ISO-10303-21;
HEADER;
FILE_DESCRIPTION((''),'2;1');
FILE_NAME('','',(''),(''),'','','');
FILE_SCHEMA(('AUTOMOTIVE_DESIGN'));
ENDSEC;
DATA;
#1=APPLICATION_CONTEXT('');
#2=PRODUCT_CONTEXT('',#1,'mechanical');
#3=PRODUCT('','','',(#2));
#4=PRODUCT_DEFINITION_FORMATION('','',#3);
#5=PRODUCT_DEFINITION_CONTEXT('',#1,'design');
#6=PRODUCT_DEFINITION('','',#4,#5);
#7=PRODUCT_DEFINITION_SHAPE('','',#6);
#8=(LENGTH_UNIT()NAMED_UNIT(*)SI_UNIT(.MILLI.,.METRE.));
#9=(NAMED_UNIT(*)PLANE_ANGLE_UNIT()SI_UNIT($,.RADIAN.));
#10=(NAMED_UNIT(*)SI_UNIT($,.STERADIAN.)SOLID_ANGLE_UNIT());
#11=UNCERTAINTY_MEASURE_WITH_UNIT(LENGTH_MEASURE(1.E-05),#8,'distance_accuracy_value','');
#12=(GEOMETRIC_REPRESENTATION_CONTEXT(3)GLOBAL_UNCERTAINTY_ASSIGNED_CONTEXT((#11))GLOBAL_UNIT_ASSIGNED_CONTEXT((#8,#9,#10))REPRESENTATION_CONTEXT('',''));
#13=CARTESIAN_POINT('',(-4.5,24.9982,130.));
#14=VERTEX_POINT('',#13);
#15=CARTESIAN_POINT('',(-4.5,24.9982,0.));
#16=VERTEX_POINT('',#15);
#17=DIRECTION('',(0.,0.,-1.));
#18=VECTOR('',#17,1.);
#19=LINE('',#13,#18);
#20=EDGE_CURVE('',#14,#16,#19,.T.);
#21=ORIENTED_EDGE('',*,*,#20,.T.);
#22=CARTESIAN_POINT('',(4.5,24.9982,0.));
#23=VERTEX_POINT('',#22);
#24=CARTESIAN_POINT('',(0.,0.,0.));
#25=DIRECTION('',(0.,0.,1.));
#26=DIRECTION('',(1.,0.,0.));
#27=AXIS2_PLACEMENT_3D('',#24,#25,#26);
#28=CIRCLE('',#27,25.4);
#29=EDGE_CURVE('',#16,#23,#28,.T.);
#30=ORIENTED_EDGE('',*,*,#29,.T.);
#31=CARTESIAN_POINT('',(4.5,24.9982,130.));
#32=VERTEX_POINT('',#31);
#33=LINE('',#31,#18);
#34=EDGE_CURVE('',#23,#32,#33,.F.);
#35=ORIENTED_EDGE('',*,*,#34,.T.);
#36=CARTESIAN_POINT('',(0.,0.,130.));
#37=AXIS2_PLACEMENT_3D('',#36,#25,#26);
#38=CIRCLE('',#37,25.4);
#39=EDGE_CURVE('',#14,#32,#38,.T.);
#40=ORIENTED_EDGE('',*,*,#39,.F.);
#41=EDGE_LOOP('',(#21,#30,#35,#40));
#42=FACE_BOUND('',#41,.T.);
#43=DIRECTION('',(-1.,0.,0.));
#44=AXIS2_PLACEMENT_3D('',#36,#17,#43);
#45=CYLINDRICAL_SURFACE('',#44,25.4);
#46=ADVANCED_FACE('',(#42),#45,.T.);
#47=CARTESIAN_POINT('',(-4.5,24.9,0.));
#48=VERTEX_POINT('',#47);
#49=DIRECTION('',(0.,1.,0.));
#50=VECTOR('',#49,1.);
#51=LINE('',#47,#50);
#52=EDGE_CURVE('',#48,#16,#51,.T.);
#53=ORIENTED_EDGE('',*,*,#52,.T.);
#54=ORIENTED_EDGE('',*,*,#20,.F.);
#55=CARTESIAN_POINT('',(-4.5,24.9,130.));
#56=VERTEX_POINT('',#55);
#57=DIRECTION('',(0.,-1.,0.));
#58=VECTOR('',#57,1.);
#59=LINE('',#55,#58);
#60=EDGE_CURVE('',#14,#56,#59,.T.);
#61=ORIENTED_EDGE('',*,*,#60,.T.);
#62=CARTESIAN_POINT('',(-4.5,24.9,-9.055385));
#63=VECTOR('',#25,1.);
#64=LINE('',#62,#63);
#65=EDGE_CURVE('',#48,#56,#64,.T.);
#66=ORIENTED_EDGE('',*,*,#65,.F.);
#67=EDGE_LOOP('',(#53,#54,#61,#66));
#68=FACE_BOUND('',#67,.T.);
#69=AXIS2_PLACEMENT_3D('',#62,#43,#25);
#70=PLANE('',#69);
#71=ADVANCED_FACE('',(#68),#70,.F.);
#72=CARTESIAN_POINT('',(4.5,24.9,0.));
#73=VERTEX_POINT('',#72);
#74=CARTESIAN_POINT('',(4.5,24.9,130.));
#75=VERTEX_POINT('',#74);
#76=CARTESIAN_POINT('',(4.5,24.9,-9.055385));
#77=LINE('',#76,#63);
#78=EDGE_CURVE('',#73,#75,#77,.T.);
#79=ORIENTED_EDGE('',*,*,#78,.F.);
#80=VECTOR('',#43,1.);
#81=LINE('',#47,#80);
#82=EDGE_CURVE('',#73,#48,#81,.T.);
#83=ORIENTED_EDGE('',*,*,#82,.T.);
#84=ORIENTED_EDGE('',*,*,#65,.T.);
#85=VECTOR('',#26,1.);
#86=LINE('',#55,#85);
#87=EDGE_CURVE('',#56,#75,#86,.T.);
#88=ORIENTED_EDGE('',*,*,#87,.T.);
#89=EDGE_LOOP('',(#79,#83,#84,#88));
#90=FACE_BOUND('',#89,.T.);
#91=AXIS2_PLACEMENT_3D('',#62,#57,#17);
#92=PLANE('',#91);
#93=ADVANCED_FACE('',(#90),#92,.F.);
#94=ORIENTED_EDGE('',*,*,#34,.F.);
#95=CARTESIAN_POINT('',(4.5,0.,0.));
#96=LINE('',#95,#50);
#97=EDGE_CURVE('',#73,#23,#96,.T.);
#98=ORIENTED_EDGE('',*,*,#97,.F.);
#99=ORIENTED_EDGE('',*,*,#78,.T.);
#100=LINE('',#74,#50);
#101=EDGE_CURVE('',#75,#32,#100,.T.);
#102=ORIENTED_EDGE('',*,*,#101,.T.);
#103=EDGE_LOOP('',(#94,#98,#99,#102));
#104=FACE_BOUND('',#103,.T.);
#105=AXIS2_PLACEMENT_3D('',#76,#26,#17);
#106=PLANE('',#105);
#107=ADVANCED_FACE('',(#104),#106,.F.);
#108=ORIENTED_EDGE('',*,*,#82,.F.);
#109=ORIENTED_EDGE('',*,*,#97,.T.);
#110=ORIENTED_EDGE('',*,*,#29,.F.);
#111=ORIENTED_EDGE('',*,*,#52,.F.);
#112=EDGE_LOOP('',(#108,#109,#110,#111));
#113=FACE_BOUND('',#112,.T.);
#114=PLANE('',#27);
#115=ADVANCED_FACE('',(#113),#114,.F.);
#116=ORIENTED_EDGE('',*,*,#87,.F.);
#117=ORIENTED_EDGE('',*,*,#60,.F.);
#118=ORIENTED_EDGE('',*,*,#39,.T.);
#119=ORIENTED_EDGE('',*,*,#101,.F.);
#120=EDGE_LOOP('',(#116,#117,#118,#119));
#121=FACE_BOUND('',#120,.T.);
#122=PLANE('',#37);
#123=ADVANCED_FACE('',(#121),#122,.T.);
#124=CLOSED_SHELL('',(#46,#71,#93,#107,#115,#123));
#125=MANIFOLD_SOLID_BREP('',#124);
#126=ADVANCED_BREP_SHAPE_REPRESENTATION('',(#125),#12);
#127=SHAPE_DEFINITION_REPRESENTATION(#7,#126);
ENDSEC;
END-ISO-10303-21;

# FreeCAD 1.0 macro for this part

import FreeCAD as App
import Part
import Sketcher
from FreeCAD import Vector

doc = App.newDocument("Part")
body = doc.addObject("PartDesign::Body", "Body")

# Sketch on XY plane
sketch1 = body.newObject("Sketcher::SketchObject", "Sketch")
sketch1.AttachmentSupport = (doc.getObject("XY_Plane"), [""])
sketch1.MapMode = "FlatFace"
sketch1.addGeometry(Part.Circle(Vector(0, 0, 0), Vector(0, 0, 1), 25), False)
sketch1.addConstraint([
    Sketcher.Constraint("Coincident", 0, 3, -1, 1),
    Sketcher.Constraint("Diameter", 0, 50.8),
])
pad1 = body.newObject("PartDesign::Pad", "Pad")
pad1.Profile = sketch1
pad1.Length = 130

# Sketch on XY plane
sketch2 = body.newObject("Sketcher::SketchObject", "Sketch001")
sketch2.AttachmentSupport = (doc.getObject("XY_Plane"), [""])
sketch2.MapMode = "FlatFace"
sketch2.AttachmentOffset = App.Placement(Vector(0, 0, 130), App.Rotation())
sketch2.addGeometry([
    Part.LineSegment(Vector(-4.5, 25.9, 0), Vector(-4.5, 24.9, 0)),
    Part.LineSegment(Vector(-4.5, 24.9, 0), Vector(4.5, 24.9, 0)),
    Part.LineSegment(Vector(4.5, 24.9, 0), Vector(4.5, 25.9, 0)),
    Part.LineSegment(Vector(4.5, 25.9, 0), Vector(-4.5, 25.9, 0)),
], False)
sketch2.addConstraint([
    Sketcher.Constraint("Coincident", 0, 2, 1, 1),
    Sketcher.Constraint("Coincident", 1, 2, 2, 1),
    Sketcher.Constraint("Coincident", 2, 2, 3, 1),
    Sketcher.Constraint("Coincident", 3, 2, 0, 1),
    Sketcher.Constraint("Vertical", 0),
    Sketcher.Constraint("Horizontal", 1),
    Sketcher.Constraint("Vertical", 2),
    Sketcher.Constraint("Horizontal", 3),
    Sketcher.Constraint("DistanceX", 1, 1, 1, 2, 9.0),
    Sketcher.Constraint("DistanceY", 0, 2, 0, 1, 1.0),
    Sketcher.Constraint("DistanceX", 0, 2, -1, 1, 4.5),
    Sketcher.Constraint("DistanceY", -1, 1, 0, 2, 24.9),
])
pocket1 = body.newObject("PartDesign::Pocket", "Pocket")
pocket1.Profile = sketch2
pocket1.Length = 130

doc.recompute()
